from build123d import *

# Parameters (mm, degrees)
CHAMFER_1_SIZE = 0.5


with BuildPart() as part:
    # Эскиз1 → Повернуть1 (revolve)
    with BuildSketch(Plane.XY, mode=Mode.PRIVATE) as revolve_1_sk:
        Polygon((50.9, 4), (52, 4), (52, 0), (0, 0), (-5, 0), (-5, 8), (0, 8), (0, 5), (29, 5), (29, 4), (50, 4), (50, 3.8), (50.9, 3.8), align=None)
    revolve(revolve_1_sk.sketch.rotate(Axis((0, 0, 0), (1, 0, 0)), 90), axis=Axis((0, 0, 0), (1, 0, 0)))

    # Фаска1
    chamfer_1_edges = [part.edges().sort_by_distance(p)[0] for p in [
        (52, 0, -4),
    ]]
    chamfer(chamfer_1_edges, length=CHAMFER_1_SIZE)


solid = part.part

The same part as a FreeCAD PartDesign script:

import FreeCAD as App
import Part
import Sketcher
from FreeCAD import Vector
Q = App.Units.Quantity


def edges_at(feature, points):
    """Names of the edges that pass closest to the given points."""
    edges = feature.Shape.Edges
    near = lambda p: min(range(len(edges)), key=lambda i: edges[i].distToShape(Part.Vertex(*p))[0])
    return sorted({f"Edge{near(p) + 1}" for p in points})

doc = App.newDocument("Part")
params = doc.addObject("Spreadsheet::Sheet", "Params")
for row, (alias, value) in enumerate([
    ("sketch1_width", "21 mm"),
    ("sketch1_width2", "29 mm"),
    ("sketch1_width3", "5 mm"),
    ("sketch1_width4", "57 mm"),
    ("sketch1_height", "1 mm"),
    ("revolution_angle", "360 deg"),
    ("chamfer_size", "0.5 mm"),
], start=1):
    params.set(f"A{row}", alias)
    params.set(f"B{row}", "=" + value)
    params.setAlias(f"B{row}", alias)

body = doc.addObject("PartDesign::Body", "Body")

# Sketch on XY plane
sketch1 = body.newObject("Sketcher::SketchObject", "Sketch")
sketch1.AttachmentSupport = (doc.getObject("XY_Plane"), [""])
sketch1.MapMode = "FlatFace"
sketch1.addGeometry(Part.LineSegment(Vector(52, 4, 0), Vector(50.9, 4, 0)), False)
sketch1.addGeometry(Part.LineSegment(Vector(50.9, 4, 0), Vector(50.9, 3.8, 0)), False)
sketch1.addGeometry(Part.LineSegment(Vector(50.9, 3.8, 0), Vector(50, 3.8, 0)), False)
sketch1.addGeometry(Part.LineSegment(Vector(50, 3.8, 0), Vector(50, 4, 0)), False)
sketch1.addGeometry(Part.LineSegment(Vector(50, 4, 0), Vector(29, 4, 0)), False)
sketch1.addGeometry(Part.LineSegment(Vector(29, 4, 0), Vector(29, 5, 0)), False)
sketch1.addGeometry(Part.LineSegment(Vector(29, 5, 0), Vector(0, 5, 0)), False)
sketch1.addGeometry(Part.LineSegment(Vector(0, 5, 0), Vector(0, 8, 0)), False)
sketch1.addGeometry(Part.LineSegment(Vector(0, 8, 0), Vector(-5, 8, 0)), False)
sketch1.addGeometry(Part.LineSegment(Vector(-5, 8, 0), Vector(-5, 0, 0)), False)
sketch1.addGeometry(Part.LineSegment(Vector(-5, 0, 0), Vector(52, 0, 0)), False)
sketch1.addGeometry(Part.LineSegment(Vector(52, 0, 0), Vector(52, 4, 0)), False)
sketch1.addConstraint(Sketcher.Constraint("Coincident", 0, 2, 1, 1))
sketch1.addConstraint(Sketcher.Constraint("Coincident", 1, 2, 2, 1))
sketch1.addConstraint(Sketcher.Constraint("Coincident", 2, 2, 3, 1))
sketch1.addConstraint(Sketcher.Constraint("Coincident", 3, 2, 4, 1))
sketch1.addConstraint(Sketcher.Constraint("Coincident", 4, 2, 5, 1))
sketch1.addConstraint(Sketcher.Constraint("Coincident", 5, 2, 6, 1))
sketch1.addConstraint(Sketcher.Constraint("Coincident", 6, 2, 7, 1))
sketch1.addConstraint(Sketcher.Constraint("Coincident", 7, 2, 8, 1))
sketch1.addConstraint(Sketcher.Constraint("Coincident", 8, 2, 9, 1))
sketch1.addConstraint(Sketcher.Constraint("Coincident", 9, 2, 10, 1))
sketch1.addConstraint(Sketcher.Constraint("Coincident", 10, 2, 11, 1))
sketch1.addConstraint(Sketcher.Constraint("Coincident", 11, 2, 0, 1))
sketch1.addConstraint(Sketcher.Constraint("Horizontal", 0))
sketch1.addConstraint(Sketcher.Constraint("Vertical", 1))
sketch1.addConstraint(Sketcher.Constraint("Horizontal", 2))
sketch1.addConstraint(Sketcher.Constraint("Vertical", 3))
sketch1.addConstraint(Sketcher.Constraint("Horizontal", 4))
sketch1.addConstraint(Sketcher.Constraint("Vertical", 5))
sketch1.addConstraint(Sketcher.Constraint("Horizontal", 6))
sketch1.addConstraint(Sketcher.Constraint("Vertical", 7))
sketch1.addConstraint(Sketcher.Constraint("Horizontal", 8))
sketch1.addConstraint(Sketcher.Constraint("Vertical", 9))
sketch1.addConstraint(Sketcher.Constraint("Horizontal", 10))
sketch1.addConstraint(Sketcher.Constraint("Vertical", 11))
sketch1.addConstraint(Sketcher.Constraint("PointOnObject", 6, 2, -2))
sketch1.addConstraint(Sketcher.Constraint("PointOnObject", 9, 2, -1))
sketch1.addConstraint(Sketcher.Constraint("Horizontal", 0, 2, 3, 2))
sketch1.addConstraint(Sketcher.Constraint("DistanceX", 4, 2, 4, 1, Q("21 mm")))
sketch1.addConstraint(Sketcher.Constraint("DistanceX", 6, 2, 6, 1, Q("29 mm")))
sketch1.addConstraint(Sketcher.Constraint("DistanceX", 8, 2, 8, 1, Q("5 mm")))
sketch1.addConstraint(Sketcher.Constraint("DistanceX", 10, 1, 10, 2, Q("57 mm")))
sketch1.addConstraint(Sketcher.Constraint("DistanceY", 5, 1, 5, 2, Q("1 mm")))
sketch1.addConstraint(Sketcher.Constraint("DistanceY", 7, 1, 7, 2, Q("3 mm")))
sketch1.addConstraint(Sketcher.Constraint("DistanceY", 9, 2, 9, 1, Q("8 mm")))
sketch1.addConstraint(Sketcher.Constraint("DistanceX", 0, 2, 0, 1, Q("1.1 mm")))
sketch1.addConstraint(Sketcher.Constraint("DistanceY", 1, 2, 1, 1, Q("0.2 mm")))
sketch1.setExpression("Constraints[27]", "Params.sketch1_width")
sketch1.setExpression("Constraints[28]", "Params.sketch1_width2")
sketch1.setExpression("Constraints[29]", "Params.sketch1_width3")
sketch1.setExpression("Constraints[30]", "Params.sketch1_width4")
sketch1.setExpression("Constraints[31]", "Params.sketch1_height")
revolution = body.newObject("PartDesign::Revolution", "Revolution")
revolution.Profile = sketch1
revolution.ReferenceAxis = (sketch1, ["H_Axis"])
revolution.setExpression("Angle", "Params.revolution_angle")
doc.recompute()

chamfer = body.newObject("PartDesign::Chamfer", "Chamfer")
chamfer.Base = (revolution, edges_at(revolution, [(52, 0, -4)]))
chamfer.setExpression("Size", "Params.chamfer_size")

doc.recompute()
